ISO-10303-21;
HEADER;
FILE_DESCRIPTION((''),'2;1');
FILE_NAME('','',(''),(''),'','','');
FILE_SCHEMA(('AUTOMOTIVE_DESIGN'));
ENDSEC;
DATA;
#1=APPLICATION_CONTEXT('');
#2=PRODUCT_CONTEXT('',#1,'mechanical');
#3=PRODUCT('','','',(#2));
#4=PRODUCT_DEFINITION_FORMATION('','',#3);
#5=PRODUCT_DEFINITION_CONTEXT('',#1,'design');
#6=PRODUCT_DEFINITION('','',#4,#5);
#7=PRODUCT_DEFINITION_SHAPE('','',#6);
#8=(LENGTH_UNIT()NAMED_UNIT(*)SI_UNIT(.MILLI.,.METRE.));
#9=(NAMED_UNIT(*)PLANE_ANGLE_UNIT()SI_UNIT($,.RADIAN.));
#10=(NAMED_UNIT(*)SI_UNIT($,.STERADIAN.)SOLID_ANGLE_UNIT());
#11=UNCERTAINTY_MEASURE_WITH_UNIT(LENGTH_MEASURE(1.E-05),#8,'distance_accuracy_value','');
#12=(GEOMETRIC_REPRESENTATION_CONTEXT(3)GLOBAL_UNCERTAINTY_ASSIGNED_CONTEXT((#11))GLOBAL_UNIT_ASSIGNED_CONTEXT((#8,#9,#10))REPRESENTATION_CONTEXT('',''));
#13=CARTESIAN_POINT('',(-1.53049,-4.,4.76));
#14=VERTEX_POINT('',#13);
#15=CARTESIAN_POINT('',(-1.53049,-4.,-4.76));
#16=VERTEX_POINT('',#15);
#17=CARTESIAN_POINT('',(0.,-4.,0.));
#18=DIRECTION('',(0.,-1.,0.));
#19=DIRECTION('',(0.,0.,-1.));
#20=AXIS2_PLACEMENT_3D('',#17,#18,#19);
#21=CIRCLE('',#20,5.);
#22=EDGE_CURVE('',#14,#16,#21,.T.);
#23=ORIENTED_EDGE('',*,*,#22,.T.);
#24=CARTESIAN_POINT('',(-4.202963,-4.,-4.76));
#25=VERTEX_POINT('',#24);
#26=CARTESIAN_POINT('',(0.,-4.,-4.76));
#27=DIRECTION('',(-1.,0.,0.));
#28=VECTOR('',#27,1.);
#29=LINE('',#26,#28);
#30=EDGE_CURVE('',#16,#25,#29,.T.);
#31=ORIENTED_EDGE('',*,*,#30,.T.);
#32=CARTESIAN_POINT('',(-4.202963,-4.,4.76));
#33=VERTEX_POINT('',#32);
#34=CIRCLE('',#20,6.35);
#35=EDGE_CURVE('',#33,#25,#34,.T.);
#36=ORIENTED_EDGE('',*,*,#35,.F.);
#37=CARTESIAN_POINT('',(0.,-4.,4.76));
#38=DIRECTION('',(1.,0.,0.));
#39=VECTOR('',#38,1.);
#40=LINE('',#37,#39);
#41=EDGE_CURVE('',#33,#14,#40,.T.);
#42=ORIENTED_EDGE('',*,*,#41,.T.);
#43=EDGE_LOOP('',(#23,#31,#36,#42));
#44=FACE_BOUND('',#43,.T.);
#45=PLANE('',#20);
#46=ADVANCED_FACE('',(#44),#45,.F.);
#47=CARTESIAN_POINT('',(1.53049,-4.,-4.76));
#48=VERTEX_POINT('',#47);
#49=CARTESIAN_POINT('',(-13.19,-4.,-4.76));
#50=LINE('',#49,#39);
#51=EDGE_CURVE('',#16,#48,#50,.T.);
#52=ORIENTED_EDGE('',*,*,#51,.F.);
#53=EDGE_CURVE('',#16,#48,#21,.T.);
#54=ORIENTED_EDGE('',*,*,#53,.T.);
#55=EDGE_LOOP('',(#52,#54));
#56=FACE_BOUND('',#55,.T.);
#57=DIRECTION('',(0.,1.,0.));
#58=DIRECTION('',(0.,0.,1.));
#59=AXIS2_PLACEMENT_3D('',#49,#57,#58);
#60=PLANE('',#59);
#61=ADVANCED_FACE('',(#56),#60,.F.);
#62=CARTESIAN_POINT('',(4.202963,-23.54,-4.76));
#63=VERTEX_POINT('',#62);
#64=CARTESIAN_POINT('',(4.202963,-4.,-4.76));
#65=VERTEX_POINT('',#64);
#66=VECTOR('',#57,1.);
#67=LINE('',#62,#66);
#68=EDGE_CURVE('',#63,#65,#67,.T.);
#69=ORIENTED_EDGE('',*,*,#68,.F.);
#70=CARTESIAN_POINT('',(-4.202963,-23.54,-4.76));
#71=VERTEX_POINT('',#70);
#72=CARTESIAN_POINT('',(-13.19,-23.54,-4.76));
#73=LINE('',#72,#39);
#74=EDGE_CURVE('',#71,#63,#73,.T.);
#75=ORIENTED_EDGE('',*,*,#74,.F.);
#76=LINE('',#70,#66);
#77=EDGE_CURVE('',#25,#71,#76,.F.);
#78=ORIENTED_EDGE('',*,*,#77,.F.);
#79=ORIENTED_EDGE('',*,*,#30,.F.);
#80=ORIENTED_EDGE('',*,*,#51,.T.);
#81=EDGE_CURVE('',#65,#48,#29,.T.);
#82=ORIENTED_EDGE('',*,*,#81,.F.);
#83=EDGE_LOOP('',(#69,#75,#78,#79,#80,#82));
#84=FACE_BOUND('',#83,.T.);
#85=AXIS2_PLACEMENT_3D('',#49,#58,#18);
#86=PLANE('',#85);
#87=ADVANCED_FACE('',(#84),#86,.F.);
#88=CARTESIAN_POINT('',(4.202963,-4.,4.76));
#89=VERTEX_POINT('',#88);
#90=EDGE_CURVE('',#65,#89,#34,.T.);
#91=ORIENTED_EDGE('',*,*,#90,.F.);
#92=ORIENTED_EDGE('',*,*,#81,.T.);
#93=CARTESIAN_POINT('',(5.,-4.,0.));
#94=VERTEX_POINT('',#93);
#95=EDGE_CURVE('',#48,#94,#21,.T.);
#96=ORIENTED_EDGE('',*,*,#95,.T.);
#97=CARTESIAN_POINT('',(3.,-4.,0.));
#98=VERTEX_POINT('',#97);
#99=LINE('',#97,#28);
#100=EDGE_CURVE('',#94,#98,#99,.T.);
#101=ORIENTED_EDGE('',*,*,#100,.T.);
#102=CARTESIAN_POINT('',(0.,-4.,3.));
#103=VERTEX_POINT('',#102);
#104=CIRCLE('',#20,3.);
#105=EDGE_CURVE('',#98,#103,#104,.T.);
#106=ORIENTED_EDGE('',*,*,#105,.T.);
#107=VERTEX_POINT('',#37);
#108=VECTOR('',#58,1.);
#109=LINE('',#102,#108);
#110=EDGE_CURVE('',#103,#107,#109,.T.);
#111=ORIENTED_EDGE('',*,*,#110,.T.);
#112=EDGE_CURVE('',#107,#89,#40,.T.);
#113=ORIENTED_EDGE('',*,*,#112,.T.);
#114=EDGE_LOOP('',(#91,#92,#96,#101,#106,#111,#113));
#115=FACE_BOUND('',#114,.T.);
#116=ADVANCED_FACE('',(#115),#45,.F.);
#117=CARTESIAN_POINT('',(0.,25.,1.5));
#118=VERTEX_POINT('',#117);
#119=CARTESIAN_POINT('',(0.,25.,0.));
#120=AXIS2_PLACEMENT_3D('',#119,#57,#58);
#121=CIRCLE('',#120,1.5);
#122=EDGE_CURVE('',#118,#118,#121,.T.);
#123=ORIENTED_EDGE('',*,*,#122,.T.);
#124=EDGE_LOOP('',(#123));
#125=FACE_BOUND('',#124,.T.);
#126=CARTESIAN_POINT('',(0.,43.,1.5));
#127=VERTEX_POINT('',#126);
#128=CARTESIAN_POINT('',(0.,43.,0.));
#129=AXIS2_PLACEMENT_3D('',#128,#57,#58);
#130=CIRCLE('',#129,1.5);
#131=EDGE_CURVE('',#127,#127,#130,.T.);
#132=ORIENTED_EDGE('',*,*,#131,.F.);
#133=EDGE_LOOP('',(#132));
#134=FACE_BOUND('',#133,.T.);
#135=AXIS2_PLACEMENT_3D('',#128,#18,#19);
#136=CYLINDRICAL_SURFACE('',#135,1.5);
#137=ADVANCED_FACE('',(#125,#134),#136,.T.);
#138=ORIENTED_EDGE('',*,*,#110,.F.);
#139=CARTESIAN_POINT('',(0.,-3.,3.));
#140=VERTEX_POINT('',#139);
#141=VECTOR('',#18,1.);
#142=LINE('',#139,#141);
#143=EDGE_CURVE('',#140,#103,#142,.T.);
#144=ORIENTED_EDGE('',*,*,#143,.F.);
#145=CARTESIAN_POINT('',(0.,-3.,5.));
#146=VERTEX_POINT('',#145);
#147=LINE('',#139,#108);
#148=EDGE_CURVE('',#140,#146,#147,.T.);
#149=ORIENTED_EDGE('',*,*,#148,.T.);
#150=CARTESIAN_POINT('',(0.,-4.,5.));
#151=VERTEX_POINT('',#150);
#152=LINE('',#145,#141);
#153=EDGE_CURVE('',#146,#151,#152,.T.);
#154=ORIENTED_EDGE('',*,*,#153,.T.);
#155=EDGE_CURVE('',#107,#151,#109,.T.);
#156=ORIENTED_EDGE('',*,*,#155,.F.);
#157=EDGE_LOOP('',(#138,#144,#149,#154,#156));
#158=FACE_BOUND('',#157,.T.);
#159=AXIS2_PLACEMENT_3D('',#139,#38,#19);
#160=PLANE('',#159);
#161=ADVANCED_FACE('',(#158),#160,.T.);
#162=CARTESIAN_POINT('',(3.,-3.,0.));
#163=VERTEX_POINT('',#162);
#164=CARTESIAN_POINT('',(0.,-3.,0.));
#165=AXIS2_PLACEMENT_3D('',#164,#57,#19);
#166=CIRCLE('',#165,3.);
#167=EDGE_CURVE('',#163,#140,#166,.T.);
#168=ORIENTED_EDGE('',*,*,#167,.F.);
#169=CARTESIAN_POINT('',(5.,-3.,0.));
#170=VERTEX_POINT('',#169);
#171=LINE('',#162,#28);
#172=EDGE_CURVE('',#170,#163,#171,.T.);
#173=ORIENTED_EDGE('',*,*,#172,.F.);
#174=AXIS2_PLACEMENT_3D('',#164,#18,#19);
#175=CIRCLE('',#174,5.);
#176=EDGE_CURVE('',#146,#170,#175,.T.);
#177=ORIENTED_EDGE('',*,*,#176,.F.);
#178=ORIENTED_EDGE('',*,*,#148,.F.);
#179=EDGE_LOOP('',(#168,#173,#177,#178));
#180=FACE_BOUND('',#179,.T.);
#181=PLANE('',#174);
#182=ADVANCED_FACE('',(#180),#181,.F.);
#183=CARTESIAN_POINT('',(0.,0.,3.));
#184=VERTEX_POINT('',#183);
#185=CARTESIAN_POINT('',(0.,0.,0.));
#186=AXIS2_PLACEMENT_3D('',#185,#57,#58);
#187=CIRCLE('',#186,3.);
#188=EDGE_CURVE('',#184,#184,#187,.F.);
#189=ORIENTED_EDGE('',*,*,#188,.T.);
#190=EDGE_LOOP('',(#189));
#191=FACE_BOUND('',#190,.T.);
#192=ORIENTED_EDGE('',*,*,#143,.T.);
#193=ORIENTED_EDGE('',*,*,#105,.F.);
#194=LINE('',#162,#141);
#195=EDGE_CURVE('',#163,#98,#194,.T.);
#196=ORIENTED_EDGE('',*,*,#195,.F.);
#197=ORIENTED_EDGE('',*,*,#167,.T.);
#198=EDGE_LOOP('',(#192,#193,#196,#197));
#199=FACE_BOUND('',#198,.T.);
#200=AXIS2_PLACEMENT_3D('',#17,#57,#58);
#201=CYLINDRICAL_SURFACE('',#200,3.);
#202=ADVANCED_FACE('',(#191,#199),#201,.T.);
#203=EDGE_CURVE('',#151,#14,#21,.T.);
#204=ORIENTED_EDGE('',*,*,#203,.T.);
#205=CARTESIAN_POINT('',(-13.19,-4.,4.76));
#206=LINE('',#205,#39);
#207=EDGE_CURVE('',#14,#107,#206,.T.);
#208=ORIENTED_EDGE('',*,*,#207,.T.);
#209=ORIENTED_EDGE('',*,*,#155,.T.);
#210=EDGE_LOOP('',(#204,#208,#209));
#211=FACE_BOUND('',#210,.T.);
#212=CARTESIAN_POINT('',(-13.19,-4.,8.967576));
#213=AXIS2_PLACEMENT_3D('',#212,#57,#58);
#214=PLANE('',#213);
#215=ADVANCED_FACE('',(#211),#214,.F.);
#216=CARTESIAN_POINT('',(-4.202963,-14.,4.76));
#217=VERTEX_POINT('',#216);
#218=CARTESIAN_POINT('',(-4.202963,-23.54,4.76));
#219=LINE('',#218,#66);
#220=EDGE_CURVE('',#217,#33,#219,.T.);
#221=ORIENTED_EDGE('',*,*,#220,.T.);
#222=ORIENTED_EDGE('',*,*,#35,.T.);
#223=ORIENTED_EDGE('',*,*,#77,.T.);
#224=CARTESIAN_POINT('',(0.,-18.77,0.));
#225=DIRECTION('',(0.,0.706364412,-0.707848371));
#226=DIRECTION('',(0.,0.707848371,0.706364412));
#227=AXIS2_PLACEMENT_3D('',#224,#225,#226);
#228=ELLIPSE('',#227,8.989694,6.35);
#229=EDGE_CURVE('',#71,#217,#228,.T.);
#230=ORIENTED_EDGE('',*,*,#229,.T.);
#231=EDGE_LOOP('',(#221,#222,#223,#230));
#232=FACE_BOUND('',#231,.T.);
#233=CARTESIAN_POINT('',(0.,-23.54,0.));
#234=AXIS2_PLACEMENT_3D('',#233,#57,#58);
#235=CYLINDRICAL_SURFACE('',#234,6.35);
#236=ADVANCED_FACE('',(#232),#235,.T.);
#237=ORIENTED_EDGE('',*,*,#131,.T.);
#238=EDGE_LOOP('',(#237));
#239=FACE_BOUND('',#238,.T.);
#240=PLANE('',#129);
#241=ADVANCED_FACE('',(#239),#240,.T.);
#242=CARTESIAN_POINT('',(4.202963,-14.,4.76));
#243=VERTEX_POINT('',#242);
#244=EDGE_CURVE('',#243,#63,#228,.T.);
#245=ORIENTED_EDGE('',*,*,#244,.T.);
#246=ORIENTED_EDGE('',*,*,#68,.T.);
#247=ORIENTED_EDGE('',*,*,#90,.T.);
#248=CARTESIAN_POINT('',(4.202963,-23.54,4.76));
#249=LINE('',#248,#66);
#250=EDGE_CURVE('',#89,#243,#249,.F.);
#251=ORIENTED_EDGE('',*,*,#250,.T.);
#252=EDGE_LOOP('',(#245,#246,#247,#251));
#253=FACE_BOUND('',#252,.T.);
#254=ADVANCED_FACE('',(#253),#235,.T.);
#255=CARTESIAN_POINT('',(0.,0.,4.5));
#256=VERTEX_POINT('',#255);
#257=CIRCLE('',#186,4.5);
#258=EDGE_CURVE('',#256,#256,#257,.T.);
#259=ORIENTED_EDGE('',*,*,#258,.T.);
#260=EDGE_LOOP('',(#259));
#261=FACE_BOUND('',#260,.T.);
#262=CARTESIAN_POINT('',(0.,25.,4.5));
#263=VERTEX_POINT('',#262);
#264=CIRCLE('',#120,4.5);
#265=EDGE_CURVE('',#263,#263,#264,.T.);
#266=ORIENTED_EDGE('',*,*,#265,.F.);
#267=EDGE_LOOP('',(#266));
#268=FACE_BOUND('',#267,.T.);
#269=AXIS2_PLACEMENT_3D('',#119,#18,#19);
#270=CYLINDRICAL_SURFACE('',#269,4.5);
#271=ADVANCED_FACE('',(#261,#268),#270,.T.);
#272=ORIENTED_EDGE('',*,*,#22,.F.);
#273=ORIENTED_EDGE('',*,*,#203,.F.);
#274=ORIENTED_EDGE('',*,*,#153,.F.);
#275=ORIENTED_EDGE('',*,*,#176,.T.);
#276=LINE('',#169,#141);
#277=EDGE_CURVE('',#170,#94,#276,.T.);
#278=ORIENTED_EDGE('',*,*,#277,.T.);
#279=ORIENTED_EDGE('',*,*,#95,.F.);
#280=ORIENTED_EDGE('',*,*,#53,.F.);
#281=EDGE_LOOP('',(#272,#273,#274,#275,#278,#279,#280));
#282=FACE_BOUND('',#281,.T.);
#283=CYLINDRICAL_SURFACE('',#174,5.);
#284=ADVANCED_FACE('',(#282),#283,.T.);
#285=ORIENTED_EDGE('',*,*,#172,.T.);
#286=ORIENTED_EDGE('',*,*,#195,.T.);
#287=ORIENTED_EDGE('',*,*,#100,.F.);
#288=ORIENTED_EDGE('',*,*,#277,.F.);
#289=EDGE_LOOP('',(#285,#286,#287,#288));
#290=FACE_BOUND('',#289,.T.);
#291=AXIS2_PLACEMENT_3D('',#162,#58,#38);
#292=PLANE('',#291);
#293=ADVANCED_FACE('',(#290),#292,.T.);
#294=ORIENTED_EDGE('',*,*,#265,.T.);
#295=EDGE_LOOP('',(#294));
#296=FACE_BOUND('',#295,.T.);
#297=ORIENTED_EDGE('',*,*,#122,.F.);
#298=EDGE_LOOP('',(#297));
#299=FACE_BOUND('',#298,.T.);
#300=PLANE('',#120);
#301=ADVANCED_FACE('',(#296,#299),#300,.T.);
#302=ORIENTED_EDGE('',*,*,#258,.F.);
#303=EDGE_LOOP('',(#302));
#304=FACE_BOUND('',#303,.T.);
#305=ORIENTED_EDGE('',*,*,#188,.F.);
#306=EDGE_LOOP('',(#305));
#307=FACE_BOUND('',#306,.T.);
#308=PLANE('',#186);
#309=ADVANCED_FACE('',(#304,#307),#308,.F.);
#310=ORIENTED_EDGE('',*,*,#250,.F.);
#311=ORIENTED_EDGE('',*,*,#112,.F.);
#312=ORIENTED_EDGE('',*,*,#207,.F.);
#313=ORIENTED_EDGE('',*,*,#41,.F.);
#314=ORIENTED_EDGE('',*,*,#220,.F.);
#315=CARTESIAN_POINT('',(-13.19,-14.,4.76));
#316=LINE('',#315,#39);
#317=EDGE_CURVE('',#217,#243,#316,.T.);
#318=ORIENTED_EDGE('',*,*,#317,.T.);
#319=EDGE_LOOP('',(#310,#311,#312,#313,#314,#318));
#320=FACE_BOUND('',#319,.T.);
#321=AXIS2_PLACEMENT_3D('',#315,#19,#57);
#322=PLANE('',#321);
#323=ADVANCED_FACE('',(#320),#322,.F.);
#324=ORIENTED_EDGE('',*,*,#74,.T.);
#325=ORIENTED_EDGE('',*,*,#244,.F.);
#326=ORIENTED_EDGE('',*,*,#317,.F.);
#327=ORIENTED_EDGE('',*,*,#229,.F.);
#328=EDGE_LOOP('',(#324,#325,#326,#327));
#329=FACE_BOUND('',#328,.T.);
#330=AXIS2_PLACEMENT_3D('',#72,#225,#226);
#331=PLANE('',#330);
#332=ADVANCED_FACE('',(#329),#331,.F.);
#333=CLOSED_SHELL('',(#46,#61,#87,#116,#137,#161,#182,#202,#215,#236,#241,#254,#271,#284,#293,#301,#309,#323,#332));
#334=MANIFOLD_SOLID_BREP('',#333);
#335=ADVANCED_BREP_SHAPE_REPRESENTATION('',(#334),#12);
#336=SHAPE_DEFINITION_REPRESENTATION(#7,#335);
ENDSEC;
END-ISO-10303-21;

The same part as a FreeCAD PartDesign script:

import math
import FreeCAD as App
import Part
import Sketcher
from FreeCAD import Vector
Q = App.Units.Quantity

doc = App.newDocument("Part")
body = doc.addObject("PartDesign::Body", "Body")

sketch1 = doc.addObject("Sketcher::SketchObject", "Sketch")
body.addObject(sketch1)
sketch1.AttachmentSupport = (doc.XZ_Plane, [""])
sketch1.MapMode = "FlatFace"
sketch1.addGeometry(Part.Circle(Vector(0, 0, 0), Vector(0, 0, 1), 4.5), False)
sketch1.addConstraint([
    Sketcher.Constraint("Coincident", 0, 3, -1, 1),
    Sketcher.Constraint("Diameter", 0, Q("9 mm")),
])
pad1 = doc.addObject("PartDesign::Pad", "Pad")
body.addObject(pad1)
pad1.Profile = sketch1
pad1.Length = 25
pad1.Reversed = True

sketch2 = doc.addObject("Sketcher::SketchObject", "Sketch001")
body.addObject(sketch2)
sketch2.AttachmentSupport = (doc.XZ_Plane, [""])
sketch2.MapMode = "FlatFace"
sketch2.addGeometry(Part.Circle(Vector(0, 0, 0), Vector(0, 0, 1), 3), False)
sketch2.addConstraint([
    Sketcher.Constraint("Coincident", 0, 3, -1, 1),
    Sketcher.Constraint("Diameter", 0, Q("6 mm")),
])
pad2 = doc.addObject("PartDesign::Pad", "Pad001")
body.addObject(pad2)
pad2.Profile = sketch2
pad2.Length = 4

sketch3 = doc.addObject("Sketcher::SketchObject", "Sketch002")
body.addObject(sketch3)
sketch3.AttachmentSupport = (doc.XZ_Plane, [""])
sketch3.MapMode = "FlatFace"
sketch3.AttachmentOffset = App.Placement(Vector(0, 0, 4), App.Rotation())
sketch3.addGeometry([
    Part.LineSegment(Vector(0, 3, 0), Vector(0, 5, 0)),
    Part.ArcOfCircle(Part.Circle(Vector(0, 0, 0), Vector(0, 0, 1), 5), math.radians(90), math.radians(360)),
    Part.LineSegment(Vector(5, 0, 0), Vector(3, 0, 0)),
    Part.ArcOfCircle(Part.Circle(Vector(0, 0, 0), Vector(0, 0, 1), 3), math.radians(90), math.radians(360)),
], False)
sketch3.addConstraint([
    Sketcher.Constraint("Coincident", 0, 2, 1, 1),
    Sketcher.Constraint("Coincident", 1, 2, 2, 1),
    Sketcher.Constraint("Coincident", 2, 2, 3, 2),
    Sketcher.Constraint("Coincident", 3, 1, 0, 1),
    Sketcher.Constraint("Vertical", 0),
    Sketcher.Constraint("Horizontal", 2),
    Sketcher.Constraint("Coincident", 1, 3, -1, 1),
    Sketcher.Constraint("Coincident", 3, 3, -1, 1),
    Sketcher.Constraint("PointOnObject", 0, 2, -2),
    Sketcher.Constraint("PointOnObject", 1, 2, -1),
    Sketcher.Constraint("Radius", 1, Q("5 mm")),
    Sketcher.Constraint("Radius", 3, Q("3 mm")),
])
pad3 = doc.addObject("PartDesign::Pad", "Pad002")
body.addObject(pad3)
pad3.Profile = sketch3
pad3.Length = 1
pad3.Reversed = True

sketch4 = doc.addObject("Sketcher::SketchObject", "Sketch003")
body.addObject(sketch4)
sketch4.AttachmentSupport = (doc.XZ_Plane, [""])
sketch4.MapMode = "FlatFace"
sketch4.AttachmentOffset = App.Placement(Vector(0, 0, 4), App.Rotation())
sketch4.addGeometry(Part.Circle(Vector(0, 0, 0), Vector(0, 0, 1), 6), False)
sketch4.addConstraint([
    Sketcher.Constraint("Coincident", 0, 3, -1, 1),
    Sketcher.Constraint("Diameter", 0, Q("12.7 mm")),
])
pad4 = doc.addObject("PartDesign::Pad", "Pad003")
body.addObject(pad4)
pad4.Profile = sketch4
pad4.Length = 19.54

sketch5 = doc.addObject("Sketcher::SketchObject", "Sketch004")
body.addObject(sketch5)
sketch5.AttachmentSupport = (doc.YZ_Plane, [""])
sketch5.MapMode = "FlatFace"
sketch5.AttachmentOffset = App.Placement(Vector(0, 0, 6.35), App.Rotation())
sketch5.addGeometry([
    Part.LineSegment(Vector(-4, 4.8, 0), Vector(-4, 9, 0)),
    Part.LineSegment(Vector(-4, 9, 0), Vector(-27.5, 9, 0)),
    Part.LineSegment(Vector(-27.5, 9, 0), Vector(-27.5, -8.5, 0)),
    Part.LineSegment(Vector(-27.5, -8.5, 0), Vector(-4, -8.5, 0)),
    Part.LineSegment(Vector(-4, -8.5, 0), Vector(-4, -4.8, 0)),
    Part.LineSegment(Vector(-4, -4.8, 0), Vector(-23.5, -4.8, 0)),
    Part.LineSegment(Vector(-23.5, -4.8, 0), Vector(-14, 4.8, 0)),
    Part.LineSegment(Vector(-14, 4.8, 0), Vector(-4, 4.8, 0)),
], False)
sketch5.addConstraint([
    Sketcher.Constraint("Coincident", 0, 2, 1, 1),
    Sketcher.Constraint("Coincident", 1, 2, 2, 1),
    Sketcher.Constraint("Coincident", 2, 2, 3, 1),
    Sketcher.Constraint("Coincident", 3, 2, 4, 1),
    Sketcher.Constraint("Coincident", 4, 2, 5, 1),
    Sketcher.Constraint("Coincident", 5, 2, 6, 1),
    Sketcher.Constraint("Coincident", 6, 2, 7, 1),
    Sketcher.Constraint("Coincident", 7, 2, 0, 1),
    Sketcher.Constraint("Vertical", 0),
    Sketcher.Constraint("Horizontal", 1),
    Sketcher.Constraint("Vertical", 2),
    Sketcher.Constraint("Horizontal", 3),
    Sketcher.Constraint("Vertical", 4),
    Sketcher.Constraint("Horizontal", 5),
    Sketcher.Constraint("Horizontal", 7),
    Sketcher.Constraint("Symmetric", 4, 2, 7, 2, -1),
    Sketcher.Constraint("DistanceX", 7, 1, 7, 2, Q("10 mm")),
    Sketcher.Constraint("DistanceX", 0, 2, -1, 1, Q("4 mm")),
    Sketcher.Constraint("DistanceX", 5, 2, 5, 1, Q("19.54 mm")),
    Sketcher.Constraint("DistanceY", 4, 2, -1, 1, Q("4.76 mm")),
    Sketcher.Constraint("DistanceX", 1, 2, 1, 1, Q("23.476657 mm")),
    Sketcher.Constraint("DistanceY", 0, 1, 0, 2, Q("4.207576 mm")),
    Sketcher.Constraint("DistanceY", 2, 2, 2, 1, Q("17.427343 mm")),
])
pocket1 = doc.addObject("PartDesign::Pocket", "Pocket")
body.addObject(pocket1)
pocket1.Profile = sketch5
pocket1.Length = 19.54

sketch6 = doc.addObject("Sketcher::SketchObject", "Sketch005")
body.addObject(sketch6)
sketch6.AttachmentSupport = (doc.XZ_Plane, [""])
sketch6.MapMode = "FlatFace"
sketch6.AttachmentOffset = App.Placement(Vector(0, 0, -25), App.Rotation())
sketch6.addGeometry(Part.Circle(Vector(0, 0, 0), Vector(0, 0, 1), 1.5), False)
sketch6.addConstraint([
    Sketcher.Constraint("Coincident", 0, 3, -1, 1),
    Sketcher.Constraint("Diameter", 0, Q("3 mm")),
])
pad5 = doc.addObject("PartDesign::Pad", "Pad004")
body.addObject(pad5)
pad5.Profile = sketch6
pad5.Length = 18
pad5.Reversed = True

doc.recompute()
